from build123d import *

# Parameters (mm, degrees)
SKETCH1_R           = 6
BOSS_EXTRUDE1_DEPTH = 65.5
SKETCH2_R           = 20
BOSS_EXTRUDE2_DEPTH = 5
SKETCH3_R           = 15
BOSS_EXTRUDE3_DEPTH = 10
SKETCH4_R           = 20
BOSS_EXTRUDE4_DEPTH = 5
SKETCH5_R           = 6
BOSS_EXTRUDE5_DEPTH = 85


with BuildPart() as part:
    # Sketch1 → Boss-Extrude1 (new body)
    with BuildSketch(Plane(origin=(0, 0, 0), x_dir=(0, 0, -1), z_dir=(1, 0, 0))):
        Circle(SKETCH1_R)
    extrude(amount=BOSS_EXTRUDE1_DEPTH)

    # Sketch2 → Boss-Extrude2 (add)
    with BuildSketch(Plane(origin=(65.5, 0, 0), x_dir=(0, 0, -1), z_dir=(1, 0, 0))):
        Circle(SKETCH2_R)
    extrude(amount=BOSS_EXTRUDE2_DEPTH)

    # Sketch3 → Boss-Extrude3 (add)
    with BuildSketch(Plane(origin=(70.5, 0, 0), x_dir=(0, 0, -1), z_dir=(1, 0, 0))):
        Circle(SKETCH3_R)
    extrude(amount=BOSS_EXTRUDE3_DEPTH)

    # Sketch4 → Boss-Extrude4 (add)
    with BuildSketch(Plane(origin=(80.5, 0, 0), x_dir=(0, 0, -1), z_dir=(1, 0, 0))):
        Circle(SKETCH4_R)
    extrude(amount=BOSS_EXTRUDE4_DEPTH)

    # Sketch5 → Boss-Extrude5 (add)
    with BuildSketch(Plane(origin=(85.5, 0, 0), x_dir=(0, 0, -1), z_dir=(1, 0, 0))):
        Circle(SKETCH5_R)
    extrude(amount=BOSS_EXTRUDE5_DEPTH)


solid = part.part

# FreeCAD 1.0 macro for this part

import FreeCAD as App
import Part
import Sketcher
from FreeCAD import Vector
Q = App.Units.Quantity

doc = App.newDocument("Part")
body = doc.addObject("PartDesign::Body", "Body")

# Sketch on YZ plane
sketch1 = body.newObject("Sketcher::SketchObject", "Sketch")
sketch1.AttachmentSupport = (doc.getObject("YZ_Plane"), [""])
sketch1.MapMode = "FlatFace"
sketch1.addGeometry(Part.Circle(Vector(0, 0, 0), Vector(0, 0, 1), 6), False)
sketch1.addConstraint([
    Sketcher.Constraint("Coincident", 0, 3, -1, 1),
    Sketcher.Constraint("Diameter", 0, Q("12 mm")),
])
pad1 = body.newObject("PartDesign::Pad", "Pad")
pad1.Profile = sketch1
pad1.Length = 65.5

# Sketch on YZ plane
sketch2 = body.newObject("Sketcher::SketchObject", "Sketch001")
sketch2.AttachmentSupport = (doc.getObject("YZ_Plane"), [""])
sketch2.MapMode = "FlatFace"
sketch2.AttachmentOffset = App.Placement(Vector(0, 0, 65.5), App.Rotation())
sketch2.addGeometry(Part.Circle(Vector(0, 0, 0), Vector(0, 0, 1), 20), False)
sketch2.addConstraint([
    Sketcher.Constraint("Coincident", 0, 3, -1, 1),
    Sketcher.Constraint("Diameter", 0, Q("40 mm")),
])
pad2 = body.newObject("PartDesign::Pad", "Pad001")
pad2.Profile = sketch2
pad2.Length = 5

# Sketch on YZ plane
sketch3 = body.newObject("Sketcher::SketchObject", "Sketch002")
sketch3.AttachmentSupport = (doc.getObject("YZ_Plane"), [""])
sketch3.MapMode = "FlatFace"
sketch3.AttachmentOffset = App.Placement(Vector(0, 0, 70.5), App.Rotation())
sketch3.addGeometry(Part.Circle(Vector(0, 0, 0), Vector(0, 0, 1), 15), False)
sketch3.addConstraint([
    Sketcher.Constraint("Coincident", 0, 3, -1, 1),
    Sketcher.Constraint("Diameter", 0, Q("30 mm")),
])
pad3 = body.newObject("PartDesign::Pad", "Pad002")
pad3.Profile = sketch3
pad3.Length = 10

# Sketch on YZ plane
sketch4 = body.newObject("Sketcher::SketchObject", "Sketch003")
sketch4.AttachmentSupport = (doc.getObject("YZ_Plane"), [""])
sketch4.MapMode = "FlatFace"
sketch4.AttachmentOffset = App.Placement(Vector(0, 0, 80.5), App.Rotation())
sketch4.addGeometry(Part.Circle(Vector(0, 0, 0), Vector(0, 0, 1), 20), False)
sketch4.addConstraint([
    Sketcher.Constraint("Coincident", 0, 3, -1, 1),
    Sketcher.Constraint("Diameter", 0, Q("40 mm")),
])
pad4 = body.newObject("PartDesign::Pad", "Pad003")
pad4.Profile = sketch4
pad4.Length = 5

# Sketch on YZ plane
sketch5 = body.newObject("Sketcher::SketchObject", "Sketch004")
sketch5.AttachmentSupport = (doc.getObject("YZ_Plane"), [""])
sketch5.MapMode = "FlatFace"
sketch5.AttachmentOffset = App.Placement(Vector(0, 0, 85.5), App.Rotation())
sketch5.addGeometry(Part.Circle(Vector(0, 0, 0), Vector(0, 0, 1), 6), False)
sketch5.addConstraint([
    Sketcher.Constraint("Coincident", 0, 3, -1, 1),
    Sketcher.Constraint("Diameter", 0, Q("12 mm")),
])
pad5 = body.newObject("PartDesign::Pad", "Pad004")
pad5.Profile = sketch5
pad5.Length = 85

doc.recompute()
